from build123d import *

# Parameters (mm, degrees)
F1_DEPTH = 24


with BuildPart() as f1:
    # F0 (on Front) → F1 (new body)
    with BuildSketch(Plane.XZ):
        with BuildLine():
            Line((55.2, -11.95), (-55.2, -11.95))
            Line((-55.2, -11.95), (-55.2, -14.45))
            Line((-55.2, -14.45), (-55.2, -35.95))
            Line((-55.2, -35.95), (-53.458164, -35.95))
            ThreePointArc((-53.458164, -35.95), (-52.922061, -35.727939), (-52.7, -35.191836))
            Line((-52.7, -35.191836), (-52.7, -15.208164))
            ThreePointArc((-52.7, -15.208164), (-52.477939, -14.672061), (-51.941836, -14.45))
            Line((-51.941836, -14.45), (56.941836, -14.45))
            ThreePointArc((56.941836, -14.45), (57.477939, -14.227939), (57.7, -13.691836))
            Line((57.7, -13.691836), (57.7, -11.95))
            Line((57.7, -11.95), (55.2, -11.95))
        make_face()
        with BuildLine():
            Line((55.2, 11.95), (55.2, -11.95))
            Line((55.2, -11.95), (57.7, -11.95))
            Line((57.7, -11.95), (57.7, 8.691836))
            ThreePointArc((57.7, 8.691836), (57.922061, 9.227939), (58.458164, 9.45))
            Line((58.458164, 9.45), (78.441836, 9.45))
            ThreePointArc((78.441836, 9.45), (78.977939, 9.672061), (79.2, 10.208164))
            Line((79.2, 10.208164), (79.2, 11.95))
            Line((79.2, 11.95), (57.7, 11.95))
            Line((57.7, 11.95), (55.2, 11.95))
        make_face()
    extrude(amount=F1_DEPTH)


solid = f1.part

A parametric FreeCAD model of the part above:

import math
import FreeCAD as App
import Part
import Sketcher

V = App.Vector

doc = App.newDocument("Part")
body = doc.addObject("PartDesign::Body", "Body")

# Sketch on XZ plane
sketch1 = body.newObject("Sketcher::SketchObject", "Sketch")
sketch1.AttachmentSupport = (doc.getObject("XZ_Plane"), [""])
sketch1.MapMode = "FlatFace"
sketch1.addGeometry(Part.LineSegment(V(-55.2, -11.9, 0), V(-55.2, -36, 0)), False)
sketch1.addGeometry(Part.LineSegment(V(-55.2, -36, 0), V(-53.5, -36, 0)), False)
sketch1.addGeometry(Part.ArcOfCircle(Part.Circle(V(-53.5, -35.2, 0), V(0, 0, 1), 0.8), math.radians(-90), math.radians(0)), False)
sketch1.addGeometry(Part.LineSegment(V(-52.7, -35.2, 0), V(-52.7, -15.2, 0)), False)
sketch1.addGeometry(Part.ArcOfCircle(Part.Circle(V(-51.9, -15.2, 0), V(0, 0, 1), 0.8), math.radians(90), math.radians(180)), False)
sketch1.addGeometry(Part.LineSegment(V(-51.9, -14.4, 0), V(56.9, -14.4, 0)), False)
sketch1.addGeometry(Part.ArcOfCircle(Part.Circle(V(56.9, -13.7, 0), V(0, 0, 1), 0.8), math.radians(-90), math.radians(0)), False)
sketch1.addGeometry(Part.LineSegment(V(57.7, -13.7, 0), V(57.7, 8.7, 0)), False)
sketch1.addGeometry(Part.ArcOfCircle(Part.Circle(V(58.5, 8.7, 0), V(0, 0, 1), 0.8), math.radians(90), math.radians(180)), False)
sketch1.addGeometry(Part.LineSegment(V(58.5, 9.4, 0), V(78.4, 9.4, 0)), False)
sketch1.addGeometry(Part.ArcOfCircle(Part.Circle(V(78.4, 10.2, 0), V(0, 0, 1), 0.8), math.radians(-90), math.radians(0)), False)
sketch1.addGeometry(Part.LineSegment(V(79.2, 10.2, 0), V(79.2, 11.9, 0)), False)
sketch1.addGeometry(Part.LineSegment(V(79.2, 11.9, 0), V(55.2, 11.9, 0)), False)
sketch1.addGeometry(Part.LineSegment(V(55.2, 11.9, 0), V(55.2, -11.9, 0)), False)
sketch1.addGeometry(Part.LineSegment(V(55.2, -11.9, 0), V(-55.2, -11.9, 0)), False)
sketch1.addConstraint(Sketcher.Constraint("Coincident", 0, 2, 1, 1))
sketch1.addConstraint(Sketcher.Constraint("Tangent", 1, 2, 2, 1))
sketch1.addConstraint(Sketcher.Constraint("Tangent", 2, 2, 3, 1))
sketch1.addConstraint(Sketcher.Constraint("Tangent", 3, 2, 4, 2))
sketch1.addConstraint(Sketcher.Constraint("Tangent", 4, 1, 5, 1))
sketch1.addConstraint(Sketcher.Constraint("Tangent", 5, 2, 6, 1))
sketch1.addConstraint(Sketcher.Constraint("Tangent", 6, 2, 7, 1))
sketch1.addConstraint(Sketcher.Constraint("Tangent", 7, 2, 8, 2))
sketch1.addConstraint(Sketcher.Constraint("Tangent", 8, 1, 9, 1))
sketch1.addConstraint(Sketcher.Constraint("Tangent", 9, 2, 10, 1))
sketch1.addConstraint(Sketcher.Constraint("Tangent", 10, 2, 11, 1))
sketch1.addConstraint(Sketcher.Constraint("Coincident", 11, 2, 12, 1))
sketch1.addConstraint(Sketcher.Constraint("Coincident", 12, 2, 13, 1))
sketch1.addConstraint(Sketcher.Constraint("Coincident", 13, 2, 14, 1))
sketch1.addConstraint(Sketcher.Constraint("Coincident", 14, 2, 0, 1))
sketch1.addConstraint(Sketcher.Constraint("Vertical", 0))
sketch1.addConstraint(Sketcher.Constraint("Horizontal", 1))
sketch1.addConstraint(Sketcher.Constraint("Vertical", 3))
sketch1.addConstraint(Sketcher.Constraint("Horizontal", 5))
sketch1.addConstraint(Sketcher.Constraint("Vertical", 7))
sketch1.addConstraint(Sketcher.Constraint("Horizontal", 9))
sketch1.addConstraint(Sketcher.Constraint("Vertical", 11))
sketch1.addConstraint(Sketcher.Constraint("Horizontal", 12))
sketch1.addConstraint(Sketcher.Constraint("Vertical", 13))
sketch1.addConstraint(Sketcher.Constraint("Horizontal", 14))
sketch1.addConstraint(Sketcher.Constraint("Equal", 2, 4))
sketch1.addConstraint(Sketcher.Constraint("Equal", 4, 6))
sketch1.addConstraint(Sketcher.Constraint("Equal", 6, 8))
sketch1.addConstraint(Sketcher.Constraint("Equal", 8, 10))
sketch1.addConstraint(Sketcher.Constraint("Symmetric", 12, 2, 14, 2, -1, 1))
sketch1.addConstraint(Sketcher.Constraint("Equal", 12, 0))
sketch1.addConstraint(Sketcher.Constraint("Equal", 9, 3))
sketch1.addConstraint(Sketcher.Constraint("Equal", 1, 11))
sketch1.addConstraint(Sketcher.Constraint("DistanceX", 12, 2, 12, 1, 24.0))
sketch1.addConstraint(Sketcher.Constraint("DistanceX", 14, 2, 14, 1, 110.4))
sketch1.addConstraint(Sketcher.Constraint("DistanceY", 13, 2, 13, 1, 23.9))
sketch1.addConstraint(Sketcher.Constraint("DistanceX", 2, 2, -1, 1, 52.7))
sketch1.addConstraint(Sketcher.Constraint("DistanceX", -1, 1, 6, 2, 57.7))
sketch1.addConstraint(Sketcher.Constraint("Radius", 2, 0.758164))
pad1 = body.newObject("PartDesign::Pad", "Pad")
pad1.Profile = sketch1
pad1.Length = 24

doc.recompute()
